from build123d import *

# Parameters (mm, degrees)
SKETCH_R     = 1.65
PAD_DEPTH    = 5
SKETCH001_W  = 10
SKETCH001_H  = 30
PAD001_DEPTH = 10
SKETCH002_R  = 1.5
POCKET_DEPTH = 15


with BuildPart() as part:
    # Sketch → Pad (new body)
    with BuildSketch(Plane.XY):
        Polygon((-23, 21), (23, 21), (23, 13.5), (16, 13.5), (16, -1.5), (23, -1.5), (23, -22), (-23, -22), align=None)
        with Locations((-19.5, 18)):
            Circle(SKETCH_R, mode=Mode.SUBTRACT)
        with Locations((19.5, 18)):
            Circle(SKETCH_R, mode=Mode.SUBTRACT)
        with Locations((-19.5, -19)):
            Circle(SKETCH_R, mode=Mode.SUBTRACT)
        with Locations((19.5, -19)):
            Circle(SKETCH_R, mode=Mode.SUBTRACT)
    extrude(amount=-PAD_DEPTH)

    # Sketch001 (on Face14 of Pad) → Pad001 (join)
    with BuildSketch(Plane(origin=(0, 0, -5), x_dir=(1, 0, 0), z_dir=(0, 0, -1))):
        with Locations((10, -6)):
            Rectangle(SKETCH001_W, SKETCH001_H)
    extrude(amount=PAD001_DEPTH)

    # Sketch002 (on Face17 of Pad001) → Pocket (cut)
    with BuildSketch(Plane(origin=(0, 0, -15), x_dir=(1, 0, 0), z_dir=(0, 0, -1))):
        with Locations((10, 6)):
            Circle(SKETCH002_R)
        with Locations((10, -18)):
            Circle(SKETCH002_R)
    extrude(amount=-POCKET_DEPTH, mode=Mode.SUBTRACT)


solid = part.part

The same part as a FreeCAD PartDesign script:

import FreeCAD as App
import Part
import Sketcher

V = App.Vector
Q = App.Units.Quantity

doc = App.newDocument("Part")
body = doc.addObject("PartDesign::Body", "Body")

# Sketch on XY plane
sketch1 = body.newObject("Sketcher::SketchObject", "Sketch")
sketch1.AttachmentSupport = (doc.getObject("XY_Plane"), [""])
sketch1.MapMode = "FlatFace"
sketch1.addGeometry([
    Part.LineSegment(V(23, 21, 0), V(-23, 21, 0)),  # 0
    Part.LineSegment(V(-23, 21, 0), V(-23, -22, 0)),  # 1
    Part.LineSegment(V(-23, -22, 0), V(23, -22, 0)),  # 2
    Part.LineSegment(V(23, -22, 0), V(23, -1.5, 0)),  # 3
    Part.LineSegment(V(23, -1.5, 0), V(16, -1.5, 0)),  # 4
    Part.LineSegment(V(16, -1.5, 0), V(16, 13.5, 0)),  # 5
    Part.LineSegment(V(16, 13.5, 0), V(23, 13.5, 0)),  # 6
    Part.LineSegment(V(23, 13.5, 0), V(23, 21, 0)),  # 7
    Part.Circle(V(19.5, -19, 0), V(0, 0, 1), 1.6),  # 8
    Part.Circle(V(-19.5, -19, 0), V(0, 0, 1), 1.6),  # 9
    Part.Circle(V(19.5, 18, 0), V(0, 0, 1), 1.6),  # 10
    Part.Circle(V(-19.5, 18, 0), V(0, 0, 1), 1.6),  # 11
], False)
sketch1.addConstraint([
    Sketcher.Constraint("Coincident", 0, 2, 1, 1),
    Sketcher.Constraint("Coincident", 1, 2, 2, 1),
    Sketcher.Constraint("Coincident", 2, 2, 3, 1),
    Sketcher.Constraint("Coincident", 3, 2, 4, 1),
    Sketcher.Constraint("Coincident", 4, 2, 5, 1),
    Sketcher.Constraint("Coincident", 5, 2, 6, 1),
    Sketcher.Constraint("Coincident", 6, 2, 7, 1),
    Sketcher.Constraint("Coincident", 7, 2, 0, 1),
    Sketcher.Constraint("Horizontal", 0),
    Sketcher.Constraint("Vertical", 1),
    Sketcher.Constraint("Horizontal", 2),
    Sketcher.Constraint("Vertical", 3),
    Sketcher.Constraint("Horizontal", 4),
    Sketcher.Constraint("Vertical", 5),
    Sketcher.Constraint("Horizontal", 6),
    Sketcher.Constraint("Vertical", 7),
    Sketcher.Constraint("Equal", 8, 9),
    Sketcher.Constraint("Equal", 9, 10),
    Sketcher.Constraint("Equal", 10, 11),
    Sketcher.Constraint("Symmetric", 8, 3, 9, 3, -2),
    Sketcher.Constraint("Symmetric", 10, 3, 11, 3, -2),
    Sketcher.Constraint("Vertical", 8, 3, 10, 3),
    Sketcher.Constraint("Vertical", 3, 2, 6, 2),
    Sketcher.Constraint("Diameter", 8, Q("3.3 mm")),
    Sketcher.Constraint("DistanceX", 0, 2, 0, 1, Q("46 mm")),
    Sketcher.Constraint("DistanceX", 4, 2, 4, 1, Q("7 mm")),
    Sketcher.Constraint("DistanceY", 1, 2, 1, 1, Q("43 mm")),
    Sketcher.Constraint("DistanceY", 5, 1, 5, 2, Q("15 mm")),
    Sketcher.Constraint("DistanceY", 3, 1, 3, 2, Q("20.5 mm")),
    Sketcher.Constraint("DistanceY", 8, 3, -1, 1, Q("19 mm")),
    Sketcher.Constraint("DistanceY", -1, 1, 10, 3, Q("18 mm")),
    Sketcher.Constraint("DistanceX", 0, 2, -1, 1, Q("23 mm")),
    Sketcher.Constraint("DistanceY", -1, 1, 0, 2, Q("21 mm")),
    Sketcher.Constraint("DistanceX", 9, 3, 8, 3, Q("39 mm")),
])
pad1 = body.newObject("PartDesign::Pad", "Pad")
pad1.Profile = sketch1
pad1.Length = 5
pad1.Reversed = True

# Sketch on XY plane
sketch2 = body.newObject("Sketcher::SketchObject", "Sketch001")
sketch2.AttachmentSupport = (doc.getObject("XY_Plane"), [""])
sketch2.MapMode = "FlatFace"
sketch2.AttachmentOffset = App.Placement(V(0, 0, -5), App.Rotation())
sketch2.addGeometry([
    Part.LineSegment(V(5, -9, 0), V(5, 21, 0)),
    Part.LineSegment(V(5, 21, 0), V(15, 21, 0)),
    Part.LineSegment(V(15, 21, 0), V(15, -9, 0)),
    Part.LineSegment(V(15, -9, 0), V(5, -9, 0)),
], False)
sketch2.addConstraint([
    Sketcher.Constraint("Coincident", 0, 2, 1, 1),
    Sketcher.Constraint("Coincident", 1, 2, 2, 1),
    Sketcher.Constraint("Coincident", 2, 2, 3, 1),
    Sketcher.Constraint("Coincident", 3, 2, 0, 1),
    Sketcher.Constraint("Vertical", 0),
    Sketcher.Constraint("Horizontal", 1),
    Sketcher.Constraint("Vertical", 2),
    Sketcher.Constraint("Horizontal", 3),
    Sketcher.Constraint("DistanceX", 1, 1, 1, 2, Q("10 mm")),
    Sketcher.Constraint("DistanceY", 0, 1, 0, 2, Q("30 mm")),
    Sketcher.Constraint("DistanceX", -1, 1, 0, 2, Q("5 mm")),
    Sketcher.Constraint("DistanceY", -1, 1, 0, 2, Q("21 mm")),
])
pad2 = body.newObject("PartDesign::Pad", "Pad001")
pad2.Profile = sketch2
pad2.Length = 10
pad2.Reversed = True

# Sketch on XY plane
sketch3 = body.newObject("Sketcher::SketchObject", "Sketch002")
sketch3.AttachmentSupport = (doc.getObject("XY_Plane"), [""])
sketch3.MapMode = "FlatFace"
sketch3.AttachmentOffset = App.Placement(V(0, 0, -15), App.Rotation())
sketch3.addGeometry([
    Part.Circle(V(10, -6, 0), V(0, 0, 1), 1.5),
    Part.Circle(V(10, 18, 0), V(0, 0, 1), 1.5),
], False)
sketch3.addConstraint([
    Sketcher.Constraint("Equal", 0, 1),
    Sketcher.Constraint("Vertical", 0, 3, 1, 3),
    Sketcher.Constraint("Diameter", 0, Q("3 mm")),
    Sketcher.Constraint("DistanceX", -1, 1, 0, 3, Q("10 mm")),
    Sketcher.Constraint("DistanceY", 0, 3, -1, 1, Q("6 mm")),
    Sketcher.Constraint("DistanceY", -1, 1, 1, 3, Q("18 mm")),
])
pocket1 = body.newObject("PartDesign::Pocket", "Pocket")
pocket1.Profile = sketch3
pocket1.Length = 15
pocket1.Reversed = True

doc.recompute()
